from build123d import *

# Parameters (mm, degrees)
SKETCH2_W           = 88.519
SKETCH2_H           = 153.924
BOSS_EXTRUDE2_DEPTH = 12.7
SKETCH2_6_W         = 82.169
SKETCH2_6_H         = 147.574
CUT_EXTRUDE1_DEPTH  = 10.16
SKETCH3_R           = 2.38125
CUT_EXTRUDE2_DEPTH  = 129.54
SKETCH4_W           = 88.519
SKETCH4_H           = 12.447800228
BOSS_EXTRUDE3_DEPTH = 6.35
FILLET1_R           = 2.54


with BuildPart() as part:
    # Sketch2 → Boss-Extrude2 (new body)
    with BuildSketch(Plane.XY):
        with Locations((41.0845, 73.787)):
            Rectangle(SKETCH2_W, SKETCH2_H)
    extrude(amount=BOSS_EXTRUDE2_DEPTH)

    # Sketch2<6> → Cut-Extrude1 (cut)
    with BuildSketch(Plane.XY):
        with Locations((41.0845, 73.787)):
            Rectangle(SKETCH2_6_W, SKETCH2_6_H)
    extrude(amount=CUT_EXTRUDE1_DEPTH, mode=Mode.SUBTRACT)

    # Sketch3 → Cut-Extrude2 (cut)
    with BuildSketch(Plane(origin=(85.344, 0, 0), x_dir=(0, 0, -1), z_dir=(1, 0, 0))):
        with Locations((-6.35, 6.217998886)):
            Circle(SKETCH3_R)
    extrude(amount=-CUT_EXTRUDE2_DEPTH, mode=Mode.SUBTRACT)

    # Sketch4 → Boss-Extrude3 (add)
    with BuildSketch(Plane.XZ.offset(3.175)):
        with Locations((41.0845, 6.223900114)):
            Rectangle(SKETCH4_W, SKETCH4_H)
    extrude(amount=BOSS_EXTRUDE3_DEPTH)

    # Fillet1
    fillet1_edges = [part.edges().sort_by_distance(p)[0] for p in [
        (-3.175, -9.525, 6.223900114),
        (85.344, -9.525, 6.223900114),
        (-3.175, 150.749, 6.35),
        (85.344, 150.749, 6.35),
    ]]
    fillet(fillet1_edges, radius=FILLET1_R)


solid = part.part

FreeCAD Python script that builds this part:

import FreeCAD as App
import Part
import Sketcher
Q = App.Units.Quantity


def edges_at(feature, points):
    """Names of the edges that pass closest to the given points."""
    edges = feature.Shape.Edges
    near = lambda p: min(range(len(edges)), key=lambda i: edges[i].distToShape(Part.Vertex(*p))[0])
    return sorted({f"Edge{near(p) + 1}" for p in points})

doc = App.newDocument("Part")
body = doc.addObject("PartDesign::Body", "Body")

sketch1 = body.newObject("Sketcher::SketchObject", "Sketch")
sketch1.AttachmentSupport = (doc.getObject("XY_Plane"), [""])
sketch1.MapMode = "FlatFace"
sketch1.addGeometry([
    Part.LineSegment(App.Vector(-3.175, 150.749, 0), App.Vector(-3.175, -3.175, 0)),
    Part.LineSegment(App.Vector(-3.175, -3.175, 0), App.Vector(85.344, -3.175, 0)),
    Part.LineSegment(App.Vector(85.344, -3.175, 0), App.Vector(85.344, 150.749, 0)),
    Part.LineSegment(App.Vector(85.344, 150.749, 0), App.Vector(-3.175, 150.749, 0)),
], False)
sketch1.addConstraint([
    Sketcher.Constraint("Coincident", 0, 2, 1, 1),
    Sketcher.Constraint("Coincident", 1, 2, 2, 1),
    Sketcher.Constraint("Coincident", 2, 2, 3, 1),
    Sketcher.Constraint("Coincident", 3, 2, 0, 1),
    Sketcher.Constraint("Vertical", 0),
    Sketcher.Constraint("Horizontal", 1),
    Sketcher.Constraint("Vertical", 2),
    Sketcher.Constraint("Horizontal", 3),
    Sketcher.Constraint("DistanceY", 0, 2, 0, 1, Q("6.06 in")),
    Sketcher.Constraint("DistanceX", 1, 1, 1, 2, Q("3.485 in")),
    Sketcher.Constraint("DistanceX", -1, 1, 1, 2, Q("3.36 in")),
    Sketcher.Constraint("DistanceY", 0, 2, -1, 1, Q("0.125 in")),
])
pad1 = body.newObject("PartDesign::Pad", "Pad")
pad1.Profile = sketch1
pad1.Length = Q("0.5 in")

sketch2 = body.newObject("Sketcher::SketchObject", "Sketch001")
sketch2.AttachmentSupport = (doc.getObject("XY_Plane"), [""])
sketch2.MapMode = "FlatFace"
sketch2.addGeometry([
    Part.LineSegment(App.Vector(0, 147.574, 0), App.Vector(0, 0, 0)),
    Part.LineSegment(App.Vector(0, 0, 0), App.Vector(82.169, 0, 0)),
    Part.LineSegment(App.Vector(82.169, 0, 0), App.Vector(82.169, 147.574, 0)),
    Part.LineSegment(App.Vector(82.169, 147.574, 0), App.Vector(0, 147.574, 0)),
], False)
sketch2.addConstraint([
    Sketcher.Constraint("Coincident", 0, 2, 1, 1),
    Sketcher.Constraint("Coincident", 1, 2, 2, 1),
    Sketcher.Constraint("Coincident", 2, 2, 3, 1),
    Sketcher.Constraint("Coincident", 3, 2, 0, 1),
    Sketcher.Constraint("Vertical", 0),
    Sketcher.Constraint("Horizontal", 1),
    Sketcher.Constraint("Vertical", 2),
    Sketcher.Constraint("Horizontal", 3),
    Sketcher.Constraint("Coincident", 0, 2, -1, 1),
    Sketcher.Constraint("DistanceY", 0, 2, 0, 1, Q("5.81 in")),
    Sketcher.Constraint("DistanceX", 1, 1, 1, 2, Q("3.235 in")),
])
pocket1 = body.newObject("PartDesign::Pocket", "Pocket")
pocket1.Profile = sketch2
pocket1.Length = Q("0.4 in")
pocket1.Reversed = True

sketch3 = body.newObject("Sketcher::SketchObject", "Sketch002")
sketch3.AttachmentSupport = (doc.getObject("YZ_Plane"), [""])
sketch3.MapMode = "FlatFace"
sketch3.AttachmentOffset = App.Placement(App.Vector(0, 0, 3.36 * 25.4), App.Rotation())
sketch3.addGeometry(Part.Circle(App.Vector(6.217999, 6.35, 0), App.Vector(0, 0, 1), 2.38125), False)
sketch3.addConstraint([
    Sketcher.Constraint("Diameter", 0, Q("0.1875 in")),
    Sketcher.Constraint("DistanceY", -1, 1, 0, 3, Q("0.25 in")),
    Sketcher.Constraint("DistanceX", -1, 1, 0, 3, Q("6.217999 mm")),
])
pocket2 = body.newObject("PartDesign::Pocket", "Pocket001")
pocket2.Profile = sketch3
pocket2.Length = Q("5.1 in")

sketch4 = body.newObject("Sketcher::SketchObject", "Sketch003")
sketch4.AttachmentSupport = (doc.getObject("XZ_Plane"), [""])
sketch4.MapMode = "FlatFace"
sketch4.AttachmentOffset = App.Placement(App.Vector(0, 0, 0.125 * 25.4), App.Rotation())
sketch4.addGeometry([
    Part.LineSegment(App.Vector(-3.175, 12.4478, 0), App.Vector(-3.175, 0, 0)),
    Part.LineSegment(App.Vector(-3.175, 0, 0), App.Vector(85.344, 0, 0)),
    Part.LineSegment(App.Vector(85.344, 0, 0), App.Vector(85.344, 12.4478, 0)),
    Part.LineSegment(App.Vector(85.344, 12.4478, 0), App.Vector(-3.175, 12.4478, 0)),
], False)
sketch4.addConstraint([
    Sketcher.Constraint("Coincident", 0, 2, 1, 1),
    Sketcher.Constraint("Coincident", 1, 2, 2, 1),
    Sketcher.Constraint("Coincident", 2, 2, 3, 1),
    Sketcher.Constraint("Coincident", 3, 2, 0, 1),
    Sketcher.Constraint("Vertical", 0),
    Sketcher.Constraint("Horizontal", 1),
    Sketcher.Constraint("Vertical", 2),
    Sketcher.Constraint("Horizontal", 3),
    Sketcher.Constraint("PointOnObject", 0, 2, -1),
    Sketcher.Constraint("DistanceX", 1, 1, 1, 2, Q("3.485 in")),
    Sketcher.Constraint("DistanceX", -1, 1, 1, 2, Q("3.36 in")),
    Sketcher.Constraint("DistanceY", 0, 2, 0, 1, Q("12.4478 mm")),
])
pad2 = body.newObject("PartDesign::Pad", "Pad001")
pad2.Profile = sketch4
pad2.Length = Q("0.25 in")
doc.recompute()

fillet = body.newObject("PartDesign::Fillet", "Fillet")
fillet.Base = (pad2, edges_at(pad2, [
    (-3.175, -9.525, 6.224),
    (85.344, -9.525, 6.224),
    (-3.175, 150.749, 6.35),
    (85.344, 150.749, 6.35),
]))
fillet.Radius = Q("0.1 in")

doc.recompute()
